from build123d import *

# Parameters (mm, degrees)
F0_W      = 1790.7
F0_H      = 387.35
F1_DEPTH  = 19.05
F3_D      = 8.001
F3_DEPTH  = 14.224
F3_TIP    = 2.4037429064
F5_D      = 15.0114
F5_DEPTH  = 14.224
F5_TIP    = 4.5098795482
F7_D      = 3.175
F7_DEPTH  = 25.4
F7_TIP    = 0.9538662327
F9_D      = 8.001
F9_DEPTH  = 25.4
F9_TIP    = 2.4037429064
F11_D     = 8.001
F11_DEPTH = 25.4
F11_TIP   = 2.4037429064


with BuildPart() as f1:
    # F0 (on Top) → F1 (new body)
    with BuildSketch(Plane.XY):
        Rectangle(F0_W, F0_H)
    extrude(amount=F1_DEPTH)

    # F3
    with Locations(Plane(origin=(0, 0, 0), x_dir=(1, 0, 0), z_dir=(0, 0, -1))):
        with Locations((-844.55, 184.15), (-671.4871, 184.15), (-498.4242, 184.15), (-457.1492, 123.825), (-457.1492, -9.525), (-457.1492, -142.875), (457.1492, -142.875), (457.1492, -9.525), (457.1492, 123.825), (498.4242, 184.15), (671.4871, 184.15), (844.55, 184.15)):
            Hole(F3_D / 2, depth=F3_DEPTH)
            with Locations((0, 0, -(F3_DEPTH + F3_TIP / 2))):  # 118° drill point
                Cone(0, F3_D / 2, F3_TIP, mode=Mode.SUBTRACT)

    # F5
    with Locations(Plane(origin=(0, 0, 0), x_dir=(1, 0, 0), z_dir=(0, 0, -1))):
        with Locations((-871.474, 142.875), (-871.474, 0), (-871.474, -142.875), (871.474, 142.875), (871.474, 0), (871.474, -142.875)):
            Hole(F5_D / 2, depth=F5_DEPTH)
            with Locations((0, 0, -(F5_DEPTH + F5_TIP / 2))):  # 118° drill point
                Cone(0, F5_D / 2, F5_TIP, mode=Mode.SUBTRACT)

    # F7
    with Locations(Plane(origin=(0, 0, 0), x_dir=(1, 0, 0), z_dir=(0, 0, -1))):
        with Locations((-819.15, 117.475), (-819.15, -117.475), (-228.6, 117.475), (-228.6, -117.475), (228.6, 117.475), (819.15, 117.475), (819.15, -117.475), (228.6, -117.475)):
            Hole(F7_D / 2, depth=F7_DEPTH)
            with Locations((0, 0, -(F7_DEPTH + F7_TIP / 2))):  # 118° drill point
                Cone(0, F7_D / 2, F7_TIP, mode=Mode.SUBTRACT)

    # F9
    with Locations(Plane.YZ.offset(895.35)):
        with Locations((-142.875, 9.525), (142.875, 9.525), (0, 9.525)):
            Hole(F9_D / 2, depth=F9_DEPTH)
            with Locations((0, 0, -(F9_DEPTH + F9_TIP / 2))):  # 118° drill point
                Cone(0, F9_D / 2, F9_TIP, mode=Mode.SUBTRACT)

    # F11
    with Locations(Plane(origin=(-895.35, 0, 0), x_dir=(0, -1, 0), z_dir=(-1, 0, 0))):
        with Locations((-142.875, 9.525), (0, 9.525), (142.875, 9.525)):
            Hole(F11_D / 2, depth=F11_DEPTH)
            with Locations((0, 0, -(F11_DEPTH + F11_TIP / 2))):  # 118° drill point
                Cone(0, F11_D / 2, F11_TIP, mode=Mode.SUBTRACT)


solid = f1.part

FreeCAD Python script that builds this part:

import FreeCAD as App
import Part
import Sketcher
Q = App.Units.Quantity

doc = App.newDocument("Part")
body = doc.addObject("PartDesign::Body", "Body")

# Sketch on XY plane
sketch1 = body.newObject("Sketcher::SketchObject", "Sketch")
sketch1.AttachmentSupport = (doc.getObject("XY_Plane"), [""])
sketch1.MapMode = "FlatFace"
sketch1.addGeometry([
    Part.LineSegment(App.Vector(-895, 194, 0), App.Vector(-895, -194, 0)),
    Part.LineSegment(App.Vector(-895, -194, 0), App.Vector(895, -194, 0)),
    Part.LineSegment(App.Vector(895, -194, 0), App.Vector(895, 194, 0)),
    Part.LineSegment(App.Vector(895, 194, 0), App.Vector(-895, 194, 0)),
], False)
sketch1.addConstraint([
    Sketcher.Constraint("Coincident", 0, 2, 1, 1),
    Sketcher.Constraint("Coincident", 1, 2, 2, 1),
    Sketcher.Constraint("Coincident", 2, 2, 3, 1),
    Sketcher.Constraint("Coincident", 3, 2, 0, 1),
    Sketcher.Constraint("Vertical", 0),
    Sketcher.Constraint("Horizontal", 1),
    Sketcher.Constraint("Vertical", 2),
    Sketcher.Constraint("Horizontal", 3),
    Sketcher.Constraint("Symmetric", 0, 2, 2, 2, -1, 1),
    Sketcher.Constraint("DistanceX", 1, 1, 1, 2, Q("70.5 in")),
    Sketcher.Constraint("DistanceY", 0, 2, 0, 1, Q("15.25 in")),
])
pad1 = body.newObject("PartDesign::Pad", "Pad")
pad1.Profile = sketch1
pad1.Length = Q("0.75 in")

# Sketch on XY plane
sketch2 = body.newObject("Sketcher::SketchObject", "Sketch001")
sketch2.AttachmentSupport = (doc.getObject("XY_Plane"), [""])
sketch2.MapMode = "FlatFace"
sketch2.addGeometry([
    Part.Circle(App.Vector(-844.5, -184.2, 0), App.Vector(0, 0, 1), 4),  # 0
    Part.Circle(App.Vector(-671.5, -184.2, 0), App.Vector(0, 0, 1), 4),  # 1
    Part.Circle(App.Vector(-498.4, -184.2, 0), App.Vector(0, 0, 1), 4),  # 2
    Part.Circle(App.Vector(-457.1, -123.8, 0), App.Vector(0, 0, 1), 4),  # 3
    Part.Circle(App.Vector(-457.1, 9.5, 0), App.Vector(0, 0, 1), 4),  # 4
    Part.Circle(App.Vector(-457.1, 142.9, 0), App.Vector(0, 0, 1), 4),  # 5
    Part.Circle(App.Vector(457.1, 142.9, 0), App.Vector(0, 0, 1), 4),  # 6
    Part.Circle(App.Vector(457.1, 9.5, 0), App.Vector(0, 0, 1), 4),  # 7
    Part.Circle(App.Vector(457.1, -123.8, 0), App.Vector(0, 0, 1), 4),  # 8
    Part.Circle(App.Vector(498.4, -184.2, 0), App.Vector(0, 0, 1), 4),  # 9
    Part.Circle(App.Vector(671.5, -184.2, 0), App.Vector(0, 0, 1), 4),  # 10
    Part.Circle(App.Vector(844.5, -184.2, 0), App.Vector(0, 0, 1), 4),  # 11
], False)
sketch2.addConstraint([
    Sketcher.Constraint("Equal", 0, 1),
    Sketcher.Constraint("Equal", 1, 2),
    Sketcher.Constraint("Equal", 2, 3),
    Sketcher.Constraint("Equal", 3, 4),
    Sketcher.Constraint("Equal", 4, 5),
    Sketcher.Constraint("Equal", 5, 6),
    Sketcher.Constraint("Equal", 6, 7),
    Sketcher.Constraint("Equal", 7, 8),
    Sketcher.Constraint("Equal", 8, 9),
    Sketcher.Constraint("Equal", 9, 10),
    Sketcher.Constraint("Equal", 10, 11),
    Sketcher.Constraint("Symmetric", 5, 3, 6, 3, -2),
    Sketcher.Constraint("Symmetric", 4, 3, 7, 3, -2),
    Sketcher.Constraint("Symmetric", 3, 3, 8, 3, -2),
    Sketcher.Constraint("Symmetric", 2, 3, 9, 3, -2),
    Sketcher.Constraint("Symmetric", 1, 3, 10, 3, -2),
    Sketcher.Constraint("Symmetric", 0, 3, 11, 3, -2),
    Sketcher.Constraint("Horizontal", 0, 3, 1, 3),
    Sketcher.Constraint("Horizontal", 1, 3, 2, 3),
    Sketcher.Constraint("Vertical", 3, 3, 4, 3),
    Sketcher.Constraint("Vertical", 4, 3, 5, 3),
    Sketcher.Constraint("Diameter", 0, Q("0.315 in")),
    Sketcher.Constraint("DistanceY", 3, 3, 5, 3, Q("10.5 in")),
    Sketcher.Constraint("DistanceX", 0, 3, -1, 1, Q("33.25 in")),
    Sketcher.Constraint("DistanceY", 0, 3, -1, 1, Q("7.25 in")),
    Sketcher.Constraint("DistanceY", 3, 3, 4, 3, Q("5.25 in")),
    Sketcher.Constraint("DistanceX", 2, 3, -1, 1, Q("19.623 in")),
    Sketcher.Constraint("DistanceX", 3, 3, -1, 1, Q("17.998 in")),
    Sketcher.Constraint("DistanceY", 3, 3, -1, 1, Q("4.875 in")),
    Sketcher.Constraint("DistanceX", 1, 3, -1, 1, Q("26.4365 in")),
])
doc.recompute()
hole = body.newObject("PartDesign::Hole", "Hole")
hole.Profile = sketch2
hole.ThreadType = "None"
hole.Diameter = Q("0.315 in")
hole.DepthType = "Dimension"
hole.Depth = Q("0.56 in")
hole.DrillPoint = "Angled"
hole.DrillPointAngle = 118
hole.Reversed = True

# Sketch on XY plane
sketch3 = body.newObject("Sketcher::SketchObject", "Sketch002")
sketch3.AttachmentSupport = (doc.getObject("XY_Plane"), [""])
sketch3.MapMode = "FlatFace"
sketch3.addGeometry([
    Part.Circle(App.Vector(-871, -143, 0), App.Vector(0, 0, 1), 8),  # 0
    Part.Circle(App.Vector(-871, 0, 0), App.Vector(0, 0, 1), 8),  # 1
    Part.Circle(App.Vector(-871, 143, 0), App.Vector(0, 0, 1), 8),  # 2
    Part.Circle(App.Vector(871, -143, 0), App.Vector(0, 0, 1), 8),  # 3
    Part.Circle(App.Vector(871, 0, 0), App.Vector(0, 0, 1), 8),  # 4
    Part.Circle(App.Vector(871, 143, 0), App.Vector(0, 0, 1), 8),  # 5
], False)
sketch3.addConstraint([
    Sketcher.Constraint("Equal", 0, 1),
    Sketcher.Constraint("Equal", 1, 2),
    Sketcher.Constraint("Equal", 2, 3),
    Sketcher.Constraint("Equal", 3, 4),
    Sketcher.Constraint("Equal", 4, 5),
    Sketcher.Constraint("Symmetric", 2, 3, 3, 3, -1, 1),
    Sketcher.Constraint("Symmetric", 1, 3, 4, 3, -1, 1),
    Sketcher.Constraint("Symmetric", 0, 3, 5, 3, -1, 1),
    Sketcher.Constraint("Symmetric", 0, 3, 3, 3, -2),
    Sketcher.Constraint("PointOnObject", 1, 3, -1),
    Sketcher.Constraint("Vertical", 0, 3, 1, 3),
    Sketcher.Constraint("Diameter", 0, Q("0.591 in")),
    Sketcher.Constraint("DistanceX", 0, 3, -1, 1, Q("34.31 in")),
    Sketcher.Constraint("DistanceY", 0, 3, 2, 3, Q("11.25 in")),
])
doc.recompute()
hole2 = body.newObject("PartDesign::Hole", "Hole001")
hole2.Profile = sketch3
hole2.ThreadType = "None"
hole2.Diameter = Q("0.591 in")
hole2.DepthType = "Dimension"
hole2.Depth = Q("0.56 in")
hole2.DrillPoint = "Angled"
hole2.DrillPointAngle = 118
hole2.Reversed = True

# Sketch on XY plane
sketch4 = body.newObject("Sketcher::SketchObject", "Sketch003")
sketch4.AttachmentSupport = (doc.getObject("XY_Plane"), [""])
sketch4.MapMode = "FlatFace"
sketch4.addGeometry([
    Part.Circle(App.Vector(-819.1, -117.5, 0), App.Vector(0, 0, 1), 1.6),  # 0
    Part.Circle(App.Vector(-819.1, 117.5, 0), App.Vector(0, 0, 1), 1.6),  # 1
    Part.Circle(App.Vector(-228.6, -117.5, 0), App.Vector(0, 0, 1), 1.6),  # 2
    Part.Circle(App.Vector(-228.6, 117.5, 0), App.Vector(0, 0, 1), 1.6),  # 3
    Part.Circle(App.Vector(228.6, -117.5, 0), App.Vector(0, 0, 1), 1.6),  # 4
    Part.Circle(App.Vector(819.1, -117.5, 0), App.Vector(0, 0, 1), 1.6),  # 5
    Part.Circle(App.Vector(819.1, 117.5, 0), App.Vector(0, 0, 1), 1.6),  # 6
    Part.Circle(App.Vector(228.6, 117.5, 0), App.Vector(0, 0, 1), 1.6),  # 7
], False)
sketch4.addConstraint([
    Sketcher.Constraint("Equal", 0, 1),
    Sketcher.Constraint("Equal", 1, 2),
    Sketcher.Constraint("Equal", 2, 3),
    Sketcher.Constraint("Equal", 3, 4),
    Sketcher.Constraint("Equal", 4, 5),
    Sketcher.Constraint("Equal", 5, 6),
    Sketcher.Constraint("Equal", 6, 7),
    Sketcher.Constraint("Symmetric", 3, 3, 4, 3, -1, 1),
    Sketcher.Constraint("Symmetric", 1, 3, 5, 3, -1, 1),
    Sketcher.Constraint("Symmetric", 0, 3, 6, 3, -1, 1),
    Sketcher.Constraint("Symmetric", 2, 3, 7, 3, -1, 1),
    Sketcher.Constraint("Symmetric", 2, 3, 4, 3, -2),
    Sketcher.Constraint("Symmetric", 0, 3, 5, 3, -2),
    Sketcher.Constraint("Horizontal", 0, 3, 2, 3),
    Sketcher.Constraint("Diameter", 0, Q("0.125 in")),
    Sketcher.Constraint("DistanceX", 2, 3, -1, 1, Q("9 in")),
    Sketcher.Constraint("DistanceX", 0, 3, 5, 3, Q("64.5 in")),
    Sketcher.Constraint("DistanceY", 0, 3, 1, 3, Q("9.25 in")),
])
doc.recompute()
hole3 = body.newObject("PartDesign::Hole", "Hole002")
hole3.Profile = sketch4
hole3.ThreadType = "None"
hole3.Diameter = Q("0.125 in")
hole3.DepthType = "Dimension"
hole3.Depth = Q("1 in")
hole3.DrillPoint = "Angled"
hole3.DrillPointAngle = 118
hole3.Reversed = True

# Sketch on YZ plane
sketch5 = body.newObject("Sketcher::SketchObject", "Sketch004")
sketch5.AttachmentSupport = (doc.getObject("YZ_Plane"), [""])
sketch5.MapMode = "FlatFace"
sketch5.AttachmentOffset = App.Placement(App.Vector(0, 0, 35.25 * 25.4), App.Rotation())
sketch5.addGeometry([
    Part.Circle(App.Vector(-142.9, 9.5, 0), App.Vector(0, 0, 1), 4),
    Part.Circle(App.Vector(142.9, 9.5, 0), App.Vector(0, 0, 1), 4),
    Part.Circle(App.Vector(0, 9.5, 0), App.Vector(0, 0, 1), 4),
], False)
sketch5.addConstraint([
    Sketcher.Constraint("Equal", 0, 1),
    Sketcher.Constraint("Equal", 1, 2),
    Sketcher.Constraint("Symmetric", 0, 3, 1, 3, -2),
    Sketcher.Constraint("PointOnObject", 2, 3, -2),
    Sketcher.Constraint("Horizontal", 1, 3, 2, 3),
    Sketcher.Constraint("Diameter", 0, Q("0.315 in")),
    Sketcher.Constraint("DistanceX", 0, 3, 1, 3, Q("11.25 in")),
    Sketcher.Constraint("DistanceY", -1, 1, 0, 3, Q("0.375 in")),
])
doc.recompute()
hole4 = body.newObject("PartDesign::Hole", "Hole003")
hole4.Profile = sketch5
hole4.ThreadType = "None"
hole4.Diameter = Q("0.315 in")
hole4.DepthType = "Dimension"
hole4.Depth = Q("1 in")
hole4.DrillPoint = "Angled"
hole4.DrillPointAngle = 118

# Sketch on YZ plane
sketch6 = body.newObject("Sketcher::SketchObject", "Sketch005")
sketch6.AttachmentSupport = (doc.getObject("YZ_Plane"), [""])
sketch6.MapMode = "FlatFace"
sketch6.AttachmentOffset = App.Placement(App.Vector(0, 0, -35.25 * 25.4), App.Rotation())
sketch6.addGeometry([
    Part.Circle(App.Vector(142.9, 9.5, 0), App.Vector(0, 0, 1), 4),
    Part.Circle(App.Vector(0, 9.5, 0), App.Vector(0, 0, 1), 4),
    Part.Circle(App.Vector(-142.9, 9.5, 0), App.Vector(0, 0, 1), 4),
], False)
sketch6.addConstraint([
    Sketcher.Constraint("Equal", 0, 1),
    Sketcher.Constraint("Equal", 1, 2),
    Sketcher.Constraint("Symmetric", 0, 3, 2, 3, -2),
    Sketcher.Constraint("PointOnObject", 1, 3, -2),
    Sketcher.Constraint("Horizontal", 0, 3, 1, 3),
    Sketcher.Constraint("Diameter", 0, Q("0.315 in")),
    Sketcher.Constraint("DistanceX", 2, 3, 0, 3, Q("11.25 in")),
    Sketcher.Constraint("DistanceY", -1, 1, 0, 3, Q("0.375 in")),
])
doc.recompute()
hole5 = body.newObject("PartDesign::Hole", "Hole004")
hole5.Profile = sketch6
hole5.ThreadType = "None"
hole5.Diameter = Q("0.315 in")
hole5.DepthType = "Dimension"
hole5.Depth = Q("1 in")
hole5.DrillPoint = "Angled"
hole5.DrillPointAngle = 118
hole5.Reversed = True

doc.recompute()
